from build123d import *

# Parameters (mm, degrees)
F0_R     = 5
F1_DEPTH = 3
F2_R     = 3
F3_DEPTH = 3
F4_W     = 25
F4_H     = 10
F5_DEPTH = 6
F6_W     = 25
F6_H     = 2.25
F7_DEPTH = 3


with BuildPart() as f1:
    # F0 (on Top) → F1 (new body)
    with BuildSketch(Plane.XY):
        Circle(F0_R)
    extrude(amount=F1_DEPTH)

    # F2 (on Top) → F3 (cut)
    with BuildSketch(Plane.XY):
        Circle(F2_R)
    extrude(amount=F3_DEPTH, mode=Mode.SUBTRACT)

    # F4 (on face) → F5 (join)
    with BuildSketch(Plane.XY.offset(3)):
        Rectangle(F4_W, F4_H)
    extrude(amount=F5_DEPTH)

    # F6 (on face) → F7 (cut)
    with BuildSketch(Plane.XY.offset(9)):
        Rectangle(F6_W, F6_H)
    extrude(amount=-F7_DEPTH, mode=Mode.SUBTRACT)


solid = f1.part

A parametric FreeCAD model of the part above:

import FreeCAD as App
import Part
import Sketcher

V = App.Vector

doc = App.newDocument("Part")
body = doc.addObject("PartDesign::Body", "Body")

# Sketch on XY plane
sketch1 = doc.addObject("Sketcher::SketchObject", "Sketch")
body.addObject(sketch1)
sketch1.AttachmentSupport = (doc.XY_Plane, [""])
sketch1.MapMode = "FlatFace"
sketch1.addGeometry(Part.Circle(V(0, 0, 0), V(0, 0, 1), 5), False)
sketch1.addConstraint(Sketcher.Constraint("Coincident", 0, 3, -1, 1))
sketch1.addConstraint(Sketcher.Constraint("Diameter", 0, 10.0))
pad1 = doc.addObject("PartDesign::Pad", "Pad")
body.addObject(pad1)
pad1.Profile = sketch1
pad1.Length = 3

# Sketch on XY plane
sketch2 = doc.addObject("Sketcher::SketchObject", "Sketch001")
body.addObject(sketch2)
sketch2.AttachmentSupport = (doc.XY_Plane, [""])
sketch2.MapMode = "FlatFace"
sketch2.addGeometry(Part.Circle(V(0, 0, 0), V(0, 0, 1), 3), False)
sketch2.addConstraint(Sketcher.Constraint("Coincident", 0, 3, -1, 1))
sketch2.addConstraint(Sketcher.Constraint("Diameter", 0, 6.0))
pocket1 = doc.addObject("PartDesign::Pocket", "Pocket")
body.addObject(pocket1)
pocket1.Profile = sketch2
pocket1.Length = 3
pocket1.Reversed = True

# Sketch on XY plane
sketch3 = doc.addObject("Sketcher::SketchObject", "Sketch002")
body.addObject(sketch3)
sketch3.AttachmentSupport = (doc.XY_Plane, [""])
sketch3.MapMode = "FlatFace"
sketch3.AttachmentOffset = App.Placement(V(0, 0, 3), App.Rotation())
sketch3.addGeometry(Part.LineSegment(V(-12, 5, 0), V(-12, -5, 0)), False)
sketch3.addGeometry(Part.LineSegment(V(-12, -5, 0), V(12, -5, 0)), False)
sketch3.addGeometry(Part.LineSegment(V(12, -5, 0), V(12, 5, 0)), False)
sketch3.addGeometry(Part.LineSegment(V(12, 5, 0), V(-12, 5, 0)), False)
sketch3.addConstraint(Sketcher.Constraint("Coincident", 0, 2, 1, 1))
sketch3.addConstraint(Sketcher.Constraint("Coincident", 1, 2, 2, 1))
sketch3.addConstraint(Sketcher.Constraint("Coincident", 2, 2, 3, 1))
sketch3.addConstraint(Sketcher.Constraint("Coincident", 3, 2, 0, 1))
sketch3.addConstraint(Sketcher.Constraint("Vertical", 0))
sketch3.addConstraint(Sketcher.Constraint("Horizontal", 1))
sketch3.addConstraint(Sketcher.Constraint("Vertical", 2))
sketch3.addConstraint(Sketcher.Constraint("Horizontal", 3))
sketch3.addConstraint(Sketcher.Constraint("Symmetric", 0, 2, 2, 2, -1, 1))
sketch3.addConstraint(Sketcher.Constraint("DistanceX", 1, 1, 1, 2, 25.0))
sketch3.addConstraint(Sketcher.Constraint("DistanceY", 0, 2, 0, 1, 10.0))
pad2 = doc.addObject("PartDesign::Pad", "Pad001")
body.addObject(pad2)
pad2.Profile = sketch3
pad2.Length = 6

# Sketch on XY plane
sketch4 = doc.addObject("Sketcher::SketchObject", "Sketch003")
body.addObject(sketch4)
sketch4.AttachmentSupport = (doc.XY_Plane, [""])
sketch4.MapMode = "FlatFace"
sketch4.AttachmentOffset = App.Placement(V(0, 0, 9), App.Rotation())
sketch4.addGeometry(Part.LineSegment(V(-12.5, 1.1, 0), V(-12.5, -1.1, 0)), False)
sketch4.addGeometry(Part.LineSegment(V(-12.5, -1.1, 0), V(12.5, -1.1, 0)), False)
sketch4.addGeometry(Part.LineSegment(V(12.5, -1.1, 0), V(12.5, 1.1, 0)), False)
sketch4.addGeometry(Part.LineSegment(V(12.5, 1.1, 0), V(-12.5, 1.1, 0)), False)
sketch4.addConstraint(Sketcher.Constraint("Coincident", 0, 2, 1, 1))
sketch4.addConstraint(Sketcher.Constraint("Coincident", 1, 2, 2, 1))
sketch4.addConstraint(Sketcher.Constraint("Coincident", 2, 2, 3, 1))
sketch4.addConstraint(Sketcher.Constraint("Coincident", 3, 2, 0, 1))
sketch4.addConstraint(Sketcher.Constraint("Vertical", 0))
sketch4.addConstraint(Sketcher.Constraint("Horizontal", 1))
sketch4.addConstraint(Sketcher.Constraint("Vertical", 2))
sketch4.addConstraint(Sketcher.Constraint("Horizontal", 3))
sketch4.addConstraint(Sketcher.Constraint("Symmetric", 0, 2, 2, 2, -1, 1))
sketch4.addConstraint(Sketcher.Constraint("DistanceX", 1, 1, 1, 2, 25.0))
sketch4.addConstraint(Sketcher.Constraint("DistanceY", 0, 2, 0, 1, 2.25))
pocket2 = doc.addObject("PartDesign::Pocket", "Pocket001")
body.addObject(pocket2)
pocket2.Profile = sketch4
pocket2.Length = 3

doc.recompute()
